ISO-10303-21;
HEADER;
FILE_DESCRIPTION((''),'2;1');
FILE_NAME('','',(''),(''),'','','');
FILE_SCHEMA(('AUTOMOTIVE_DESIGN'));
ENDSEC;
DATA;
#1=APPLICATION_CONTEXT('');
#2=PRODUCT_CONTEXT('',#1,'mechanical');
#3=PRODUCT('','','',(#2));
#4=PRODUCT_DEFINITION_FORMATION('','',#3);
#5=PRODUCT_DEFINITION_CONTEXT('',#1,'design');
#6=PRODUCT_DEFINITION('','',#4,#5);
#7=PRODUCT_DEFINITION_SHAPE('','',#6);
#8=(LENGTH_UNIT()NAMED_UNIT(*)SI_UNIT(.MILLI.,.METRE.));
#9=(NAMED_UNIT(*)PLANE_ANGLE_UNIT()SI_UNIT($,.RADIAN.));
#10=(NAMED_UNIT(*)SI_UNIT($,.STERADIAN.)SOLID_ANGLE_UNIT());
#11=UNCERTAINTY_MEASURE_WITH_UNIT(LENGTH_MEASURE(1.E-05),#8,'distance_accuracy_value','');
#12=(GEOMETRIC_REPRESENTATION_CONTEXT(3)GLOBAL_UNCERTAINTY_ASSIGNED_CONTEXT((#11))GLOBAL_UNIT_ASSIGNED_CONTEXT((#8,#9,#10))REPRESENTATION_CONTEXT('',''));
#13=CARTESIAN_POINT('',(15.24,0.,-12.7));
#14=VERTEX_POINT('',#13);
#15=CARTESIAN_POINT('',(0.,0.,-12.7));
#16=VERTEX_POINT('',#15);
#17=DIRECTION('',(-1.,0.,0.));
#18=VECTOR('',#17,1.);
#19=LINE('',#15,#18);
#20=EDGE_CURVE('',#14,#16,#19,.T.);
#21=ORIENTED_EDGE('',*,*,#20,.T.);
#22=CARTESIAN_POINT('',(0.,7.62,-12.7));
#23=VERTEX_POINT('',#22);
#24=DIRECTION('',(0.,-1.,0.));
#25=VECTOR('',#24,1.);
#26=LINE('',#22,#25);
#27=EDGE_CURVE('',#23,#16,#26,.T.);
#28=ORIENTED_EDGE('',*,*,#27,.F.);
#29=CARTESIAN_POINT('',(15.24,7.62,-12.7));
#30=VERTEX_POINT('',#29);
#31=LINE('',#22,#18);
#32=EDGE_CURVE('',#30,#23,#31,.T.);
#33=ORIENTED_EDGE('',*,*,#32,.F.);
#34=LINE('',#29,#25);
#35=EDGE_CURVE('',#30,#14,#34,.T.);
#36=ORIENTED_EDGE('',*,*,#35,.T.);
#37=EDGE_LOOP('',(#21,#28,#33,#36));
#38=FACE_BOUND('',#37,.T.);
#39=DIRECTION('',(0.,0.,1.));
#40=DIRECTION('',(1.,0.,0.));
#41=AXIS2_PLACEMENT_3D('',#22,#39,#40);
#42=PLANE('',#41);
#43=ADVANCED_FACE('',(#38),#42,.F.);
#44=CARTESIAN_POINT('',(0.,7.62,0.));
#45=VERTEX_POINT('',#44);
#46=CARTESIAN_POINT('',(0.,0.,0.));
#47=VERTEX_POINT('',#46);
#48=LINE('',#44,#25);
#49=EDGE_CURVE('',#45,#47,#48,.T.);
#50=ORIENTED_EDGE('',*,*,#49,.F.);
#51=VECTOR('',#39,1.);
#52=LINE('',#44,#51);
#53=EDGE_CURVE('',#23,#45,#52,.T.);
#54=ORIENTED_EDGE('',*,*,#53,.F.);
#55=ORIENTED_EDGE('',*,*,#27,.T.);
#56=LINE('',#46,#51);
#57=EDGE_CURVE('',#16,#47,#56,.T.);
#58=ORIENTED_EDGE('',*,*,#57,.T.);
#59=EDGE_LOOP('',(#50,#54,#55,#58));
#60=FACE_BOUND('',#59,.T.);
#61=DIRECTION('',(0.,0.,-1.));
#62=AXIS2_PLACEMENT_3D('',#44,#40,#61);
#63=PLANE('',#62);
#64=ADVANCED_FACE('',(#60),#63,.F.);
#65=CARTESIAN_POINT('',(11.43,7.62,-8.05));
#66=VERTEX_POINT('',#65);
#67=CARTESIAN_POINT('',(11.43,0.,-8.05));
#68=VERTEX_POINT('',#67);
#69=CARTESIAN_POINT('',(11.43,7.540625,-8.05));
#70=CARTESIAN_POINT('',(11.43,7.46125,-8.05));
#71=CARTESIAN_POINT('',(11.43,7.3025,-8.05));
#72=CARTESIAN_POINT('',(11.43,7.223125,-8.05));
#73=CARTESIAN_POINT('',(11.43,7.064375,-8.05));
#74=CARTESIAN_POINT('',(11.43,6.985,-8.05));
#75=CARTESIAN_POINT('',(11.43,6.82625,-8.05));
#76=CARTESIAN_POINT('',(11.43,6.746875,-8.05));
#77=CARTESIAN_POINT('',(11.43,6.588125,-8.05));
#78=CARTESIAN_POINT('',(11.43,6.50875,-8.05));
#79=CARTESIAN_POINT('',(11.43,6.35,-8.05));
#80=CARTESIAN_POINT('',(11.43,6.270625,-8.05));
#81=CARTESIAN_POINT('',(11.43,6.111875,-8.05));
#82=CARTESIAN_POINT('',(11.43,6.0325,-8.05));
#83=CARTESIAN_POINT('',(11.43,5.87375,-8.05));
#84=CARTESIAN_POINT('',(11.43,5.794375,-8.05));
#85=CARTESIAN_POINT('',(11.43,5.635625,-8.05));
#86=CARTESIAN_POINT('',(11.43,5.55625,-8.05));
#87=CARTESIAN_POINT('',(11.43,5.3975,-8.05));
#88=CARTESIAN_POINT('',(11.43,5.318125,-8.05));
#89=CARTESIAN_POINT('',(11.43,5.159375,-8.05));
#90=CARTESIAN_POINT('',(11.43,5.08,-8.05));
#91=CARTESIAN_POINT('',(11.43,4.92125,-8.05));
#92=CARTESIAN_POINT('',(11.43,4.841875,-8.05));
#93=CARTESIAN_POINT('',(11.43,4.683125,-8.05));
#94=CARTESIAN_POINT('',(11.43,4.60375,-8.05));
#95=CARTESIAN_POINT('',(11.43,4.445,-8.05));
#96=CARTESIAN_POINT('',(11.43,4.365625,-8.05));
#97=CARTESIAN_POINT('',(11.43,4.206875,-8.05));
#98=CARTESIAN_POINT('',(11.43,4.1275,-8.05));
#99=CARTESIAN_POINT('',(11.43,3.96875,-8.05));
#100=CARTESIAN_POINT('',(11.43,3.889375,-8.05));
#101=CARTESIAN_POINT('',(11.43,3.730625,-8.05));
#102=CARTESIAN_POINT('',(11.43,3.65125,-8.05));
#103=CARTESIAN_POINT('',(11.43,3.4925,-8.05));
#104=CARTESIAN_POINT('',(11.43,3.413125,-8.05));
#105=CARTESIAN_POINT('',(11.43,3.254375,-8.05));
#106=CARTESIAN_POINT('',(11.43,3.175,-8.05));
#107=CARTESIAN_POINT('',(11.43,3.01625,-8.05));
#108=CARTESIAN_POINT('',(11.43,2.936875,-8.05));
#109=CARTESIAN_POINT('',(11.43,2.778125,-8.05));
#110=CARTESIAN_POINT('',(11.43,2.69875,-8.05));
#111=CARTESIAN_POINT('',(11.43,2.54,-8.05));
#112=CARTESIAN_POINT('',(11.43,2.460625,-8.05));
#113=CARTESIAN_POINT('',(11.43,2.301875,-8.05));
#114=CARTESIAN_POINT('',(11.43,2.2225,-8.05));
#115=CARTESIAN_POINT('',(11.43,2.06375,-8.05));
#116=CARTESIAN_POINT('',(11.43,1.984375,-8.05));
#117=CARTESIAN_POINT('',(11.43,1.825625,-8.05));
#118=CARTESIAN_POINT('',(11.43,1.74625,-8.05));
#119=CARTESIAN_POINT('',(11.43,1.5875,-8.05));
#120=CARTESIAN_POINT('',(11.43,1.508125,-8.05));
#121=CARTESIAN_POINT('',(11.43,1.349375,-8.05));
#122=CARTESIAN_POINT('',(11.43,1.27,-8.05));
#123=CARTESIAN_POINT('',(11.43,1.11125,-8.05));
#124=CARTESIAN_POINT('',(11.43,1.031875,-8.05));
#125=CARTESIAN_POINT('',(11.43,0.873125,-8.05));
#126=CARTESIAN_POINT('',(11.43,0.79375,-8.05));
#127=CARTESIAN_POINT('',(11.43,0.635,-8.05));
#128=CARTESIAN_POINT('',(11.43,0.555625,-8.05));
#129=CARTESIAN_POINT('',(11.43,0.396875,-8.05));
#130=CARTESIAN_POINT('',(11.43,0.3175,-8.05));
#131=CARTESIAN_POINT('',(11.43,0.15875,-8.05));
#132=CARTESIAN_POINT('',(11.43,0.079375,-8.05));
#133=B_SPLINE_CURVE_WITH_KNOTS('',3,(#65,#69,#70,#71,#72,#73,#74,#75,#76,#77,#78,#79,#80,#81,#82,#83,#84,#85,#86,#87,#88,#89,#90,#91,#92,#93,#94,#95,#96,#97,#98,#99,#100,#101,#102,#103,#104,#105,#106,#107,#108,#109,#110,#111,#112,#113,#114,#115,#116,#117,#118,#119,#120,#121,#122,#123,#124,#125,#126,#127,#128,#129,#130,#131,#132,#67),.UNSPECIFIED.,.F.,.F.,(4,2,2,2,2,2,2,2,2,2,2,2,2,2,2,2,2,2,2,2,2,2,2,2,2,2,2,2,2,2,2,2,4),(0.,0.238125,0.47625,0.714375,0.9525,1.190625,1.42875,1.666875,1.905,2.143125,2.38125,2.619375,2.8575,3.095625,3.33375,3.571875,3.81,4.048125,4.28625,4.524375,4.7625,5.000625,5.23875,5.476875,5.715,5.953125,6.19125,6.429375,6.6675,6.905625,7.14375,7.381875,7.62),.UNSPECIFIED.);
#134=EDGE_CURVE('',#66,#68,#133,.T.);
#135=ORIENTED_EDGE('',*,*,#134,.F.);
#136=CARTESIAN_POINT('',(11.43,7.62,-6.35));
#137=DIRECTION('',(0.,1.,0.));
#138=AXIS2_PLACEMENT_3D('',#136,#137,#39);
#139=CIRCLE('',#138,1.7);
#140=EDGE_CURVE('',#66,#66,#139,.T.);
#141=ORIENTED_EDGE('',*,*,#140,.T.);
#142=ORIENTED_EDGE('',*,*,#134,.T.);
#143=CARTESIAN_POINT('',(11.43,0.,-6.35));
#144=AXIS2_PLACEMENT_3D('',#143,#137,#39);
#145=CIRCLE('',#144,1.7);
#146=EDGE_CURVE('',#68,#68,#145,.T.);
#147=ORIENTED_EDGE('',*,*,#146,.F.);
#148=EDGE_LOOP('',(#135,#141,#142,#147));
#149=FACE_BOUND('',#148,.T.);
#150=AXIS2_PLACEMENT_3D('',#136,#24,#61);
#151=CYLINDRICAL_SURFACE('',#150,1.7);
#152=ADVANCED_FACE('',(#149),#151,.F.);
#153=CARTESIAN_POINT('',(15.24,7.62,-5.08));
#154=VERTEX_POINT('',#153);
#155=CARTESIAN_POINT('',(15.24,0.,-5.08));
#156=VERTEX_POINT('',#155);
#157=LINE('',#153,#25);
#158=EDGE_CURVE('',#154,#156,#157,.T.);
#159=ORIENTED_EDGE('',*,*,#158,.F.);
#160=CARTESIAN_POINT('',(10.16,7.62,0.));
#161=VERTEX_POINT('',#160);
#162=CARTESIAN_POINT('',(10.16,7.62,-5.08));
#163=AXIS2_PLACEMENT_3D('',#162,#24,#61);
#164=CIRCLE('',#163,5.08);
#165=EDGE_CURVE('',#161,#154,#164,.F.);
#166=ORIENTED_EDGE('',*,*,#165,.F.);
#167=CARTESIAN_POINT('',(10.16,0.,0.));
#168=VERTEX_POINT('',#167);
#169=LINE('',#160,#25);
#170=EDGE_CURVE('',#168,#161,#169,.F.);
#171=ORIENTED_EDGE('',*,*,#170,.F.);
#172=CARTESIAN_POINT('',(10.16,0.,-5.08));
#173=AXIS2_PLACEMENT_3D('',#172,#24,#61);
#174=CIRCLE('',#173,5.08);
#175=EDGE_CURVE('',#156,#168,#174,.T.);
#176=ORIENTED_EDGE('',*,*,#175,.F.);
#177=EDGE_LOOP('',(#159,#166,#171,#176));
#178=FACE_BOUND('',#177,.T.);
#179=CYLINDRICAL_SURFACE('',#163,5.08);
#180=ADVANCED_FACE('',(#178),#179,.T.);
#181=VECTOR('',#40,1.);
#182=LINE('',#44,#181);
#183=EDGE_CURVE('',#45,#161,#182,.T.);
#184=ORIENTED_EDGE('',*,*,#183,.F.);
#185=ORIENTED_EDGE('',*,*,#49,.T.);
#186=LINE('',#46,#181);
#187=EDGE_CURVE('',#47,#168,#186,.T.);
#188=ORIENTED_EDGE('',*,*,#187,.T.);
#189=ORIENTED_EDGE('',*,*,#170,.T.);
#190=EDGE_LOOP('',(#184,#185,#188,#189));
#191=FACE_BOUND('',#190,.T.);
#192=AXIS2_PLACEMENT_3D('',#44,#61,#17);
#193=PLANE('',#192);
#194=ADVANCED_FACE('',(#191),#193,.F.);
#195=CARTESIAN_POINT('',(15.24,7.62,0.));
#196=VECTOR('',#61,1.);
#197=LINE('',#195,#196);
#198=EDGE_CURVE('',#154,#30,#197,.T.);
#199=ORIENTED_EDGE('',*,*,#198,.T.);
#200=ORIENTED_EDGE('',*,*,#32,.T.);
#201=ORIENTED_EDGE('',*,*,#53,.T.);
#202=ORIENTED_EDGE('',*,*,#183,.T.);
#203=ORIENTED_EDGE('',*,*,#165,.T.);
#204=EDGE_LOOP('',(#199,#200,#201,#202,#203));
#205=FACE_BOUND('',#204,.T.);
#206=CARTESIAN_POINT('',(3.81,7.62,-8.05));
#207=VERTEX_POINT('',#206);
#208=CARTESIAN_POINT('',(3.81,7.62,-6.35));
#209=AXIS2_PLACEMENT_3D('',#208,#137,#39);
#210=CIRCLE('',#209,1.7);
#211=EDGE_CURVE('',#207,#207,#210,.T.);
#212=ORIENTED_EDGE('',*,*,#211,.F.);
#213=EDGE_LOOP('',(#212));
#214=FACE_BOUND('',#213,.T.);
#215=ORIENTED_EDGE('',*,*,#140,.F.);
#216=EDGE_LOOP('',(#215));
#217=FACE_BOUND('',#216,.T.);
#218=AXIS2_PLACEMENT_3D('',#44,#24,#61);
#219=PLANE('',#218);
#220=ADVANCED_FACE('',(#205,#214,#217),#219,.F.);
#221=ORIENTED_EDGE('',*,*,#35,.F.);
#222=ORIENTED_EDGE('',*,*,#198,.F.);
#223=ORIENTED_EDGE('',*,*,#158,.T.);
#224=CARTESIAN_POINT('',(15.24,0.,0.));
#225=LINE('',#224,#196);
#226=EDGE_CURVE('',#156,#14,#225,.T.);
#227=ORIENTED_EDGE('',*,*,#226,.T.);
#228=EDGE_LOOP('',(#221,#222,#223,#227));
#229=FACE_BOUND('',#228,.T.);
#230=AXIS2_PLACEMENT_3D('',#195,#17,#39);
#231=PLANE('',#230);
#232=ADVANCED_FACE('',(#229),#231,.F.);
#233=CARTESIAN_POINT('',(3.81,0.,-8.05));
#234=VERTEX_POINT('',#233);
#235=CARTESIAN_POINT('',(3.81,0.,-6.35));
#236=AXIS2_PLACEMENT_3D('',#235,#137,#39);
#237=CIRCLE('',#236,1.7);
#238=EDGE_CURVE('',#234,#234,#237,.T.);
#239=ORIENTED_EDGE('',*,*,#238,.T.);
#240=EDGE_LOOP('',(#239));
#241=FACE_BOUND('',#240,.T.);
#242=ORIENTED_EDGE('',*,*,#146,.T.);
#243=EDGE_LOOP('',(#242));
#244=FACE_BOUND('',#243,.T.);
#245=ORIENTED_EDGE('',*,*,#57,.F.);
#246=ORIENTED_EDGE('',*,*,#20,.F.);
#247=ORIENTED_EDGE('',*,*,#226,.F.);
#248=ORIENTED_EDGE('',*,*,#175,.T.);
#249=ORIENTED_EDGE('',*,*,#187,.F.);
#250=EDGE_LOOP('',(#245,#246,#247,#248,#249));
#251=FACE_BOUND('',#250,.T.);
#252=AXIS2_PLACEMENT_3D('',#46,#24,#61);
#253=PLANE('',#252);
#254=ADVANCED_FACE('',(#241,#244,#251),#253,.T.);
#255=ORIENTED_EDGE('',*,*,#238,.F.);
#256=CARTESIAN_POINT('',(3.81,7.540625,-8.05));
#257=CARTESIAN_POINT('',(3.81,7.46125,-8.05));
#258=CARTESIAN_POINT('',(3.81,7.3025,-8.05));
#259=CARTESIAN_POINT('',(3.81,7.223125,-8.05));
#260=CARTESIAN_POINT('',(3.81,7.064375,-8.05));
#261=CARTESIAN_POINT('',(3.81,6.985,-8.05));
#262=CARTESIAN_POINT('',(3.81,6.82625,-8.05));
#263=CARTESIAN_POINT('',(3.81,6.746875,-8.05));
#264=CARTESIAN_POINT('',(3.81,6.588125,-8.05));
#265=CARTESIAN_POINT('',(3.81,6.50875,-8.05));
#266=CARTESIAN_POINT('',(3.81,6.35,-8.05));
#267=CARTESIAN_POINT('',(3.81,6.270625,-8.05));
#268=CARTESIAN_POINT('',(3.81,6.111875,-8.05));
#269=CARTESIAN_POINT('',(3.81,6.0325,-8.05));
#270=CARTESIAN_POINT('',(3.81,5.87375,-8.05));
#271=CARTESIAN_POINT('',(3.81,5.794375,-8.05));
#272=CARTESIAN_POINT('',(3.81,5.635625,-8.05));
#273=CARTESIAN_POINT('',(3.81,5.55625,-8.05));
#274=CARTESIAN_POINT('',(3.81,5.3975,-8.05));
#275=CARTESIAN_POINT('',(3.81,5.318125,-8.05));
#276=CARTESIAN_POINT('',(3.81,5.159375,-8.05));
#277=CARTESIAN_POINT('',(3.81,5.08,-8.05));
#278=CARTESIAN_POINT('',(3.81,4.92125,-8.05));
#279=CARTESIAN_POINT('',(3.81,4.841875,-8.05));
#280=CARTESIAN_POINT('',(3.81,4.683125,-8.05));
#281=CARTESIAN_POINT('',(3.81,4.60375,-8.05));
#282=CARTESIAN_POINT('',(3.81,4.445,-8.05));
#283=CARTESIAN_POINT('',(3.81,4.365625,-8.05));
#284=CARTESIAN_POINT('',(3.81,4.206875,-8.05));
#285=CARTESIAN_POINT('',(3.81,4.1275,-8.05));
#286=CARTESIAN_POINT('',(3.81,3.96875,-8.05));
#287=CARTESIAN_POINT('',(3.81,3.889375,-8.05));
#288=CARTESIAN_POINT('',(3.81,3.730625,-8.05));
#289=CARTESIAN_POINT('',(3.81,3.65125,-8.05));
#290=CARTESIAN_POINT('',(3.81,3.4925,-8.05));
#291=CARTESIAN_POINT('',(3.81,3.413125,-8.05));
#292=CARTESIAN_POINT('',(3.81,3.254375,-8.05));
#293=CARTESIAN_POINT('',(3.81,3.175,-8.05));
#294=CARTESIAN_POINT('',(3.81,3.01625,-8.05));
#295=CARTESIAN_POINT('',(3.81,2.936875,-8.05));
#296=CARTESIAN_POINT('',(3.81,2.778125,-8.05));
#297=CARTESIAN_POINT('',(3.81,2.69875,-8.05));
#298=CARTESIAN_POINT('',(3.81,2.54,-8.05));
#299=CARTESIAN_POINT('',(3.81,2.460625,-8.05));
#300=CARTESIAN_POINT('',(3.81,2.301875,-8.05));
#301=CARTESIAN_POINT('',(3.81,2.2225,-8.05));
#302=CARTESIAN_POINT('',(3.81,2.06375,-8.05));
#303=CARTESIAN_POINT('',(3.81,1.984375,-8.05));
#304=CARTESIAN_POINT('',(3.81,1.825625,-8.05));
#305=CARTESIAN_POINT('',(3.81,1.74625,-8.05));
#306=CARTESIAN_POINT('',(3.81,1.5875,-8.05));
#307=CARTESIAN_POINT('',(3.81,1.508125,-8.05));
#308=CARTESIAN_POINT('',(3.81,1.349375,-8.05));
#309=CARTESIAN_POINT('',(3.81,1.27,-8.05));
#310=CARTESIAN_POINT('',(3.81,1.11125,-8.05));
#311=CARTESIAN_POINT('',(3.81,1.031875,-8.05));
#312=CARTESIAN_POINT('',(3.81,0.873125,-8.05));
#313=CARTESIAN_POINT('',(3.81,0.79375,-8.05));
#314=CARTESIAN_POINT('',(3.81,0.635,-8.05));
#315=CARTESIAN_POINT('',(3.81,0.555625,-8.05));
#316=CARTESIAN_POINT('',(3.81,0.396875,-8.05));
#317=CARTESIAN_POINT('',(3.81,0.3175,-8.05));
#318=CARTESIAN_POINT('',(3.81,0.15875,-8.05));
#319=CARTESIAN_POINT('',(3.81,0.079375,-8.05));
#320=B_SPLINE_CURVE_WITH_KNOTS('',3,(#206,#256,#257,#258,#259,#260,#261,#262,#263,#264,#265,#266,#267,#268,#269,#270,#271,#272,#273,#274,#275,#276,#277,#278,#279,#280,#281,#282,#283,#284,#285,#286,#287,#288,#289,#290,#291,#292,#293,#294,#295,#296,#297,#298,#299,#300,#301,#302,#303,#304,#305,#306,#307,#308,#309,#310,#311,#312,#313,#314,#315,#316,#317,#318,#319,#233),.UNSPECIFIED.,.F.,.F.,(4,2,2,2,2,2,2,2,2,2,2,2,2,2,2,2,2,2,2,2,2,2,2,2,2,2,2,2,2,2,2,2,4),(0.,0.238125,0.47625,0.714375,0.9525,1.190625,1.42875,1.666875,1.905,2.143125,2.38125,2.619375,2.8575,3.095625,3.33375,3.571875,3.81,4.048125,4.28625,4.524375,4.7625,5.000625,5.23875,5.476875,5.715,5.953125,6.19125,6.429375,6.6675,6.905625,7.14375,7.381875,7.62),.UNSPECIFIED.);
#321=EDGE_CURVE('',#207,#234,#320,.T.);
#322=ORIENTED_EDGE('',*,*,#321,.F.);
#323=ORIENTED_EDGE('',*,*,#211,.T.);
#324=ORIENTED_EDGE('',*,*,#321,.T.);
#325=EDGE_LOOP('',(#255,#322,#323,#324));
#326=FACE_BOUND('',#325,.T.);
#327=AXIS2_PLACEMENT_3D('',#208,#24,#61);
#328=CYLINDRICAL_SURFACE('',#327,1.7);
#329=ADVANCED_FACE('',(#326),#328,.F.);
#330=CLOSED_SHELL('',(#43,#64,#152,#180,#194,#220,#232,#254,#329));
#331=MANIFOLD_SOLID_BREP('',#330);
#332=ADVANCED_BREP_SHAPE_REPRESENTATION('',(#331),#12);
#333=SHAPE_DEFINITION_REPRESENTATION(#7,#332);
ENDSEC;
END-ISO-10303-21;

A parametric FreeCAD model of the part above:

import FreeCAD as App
import Part
import Sketcher
Q = App.Units.Quantity


def edges_at(feature, points):
    """Names of the edges that pass closest to the given points."""
    edges = feature.Shape.Edges
    near = lambda p: min(range(len(edges)), key=lambda i: edges[i].distToShape(Part.Vertex(*p))[0])
    return sorted({f"Edge{near(p) + 1}" for p in points})


def add_polygon(sketch, points):
    """Adds a closed chain of lines whose ends are joined by coincident constraints."""
    first, n = sketch.GeometryCount, len(points)
    for a, b in zip(points, points[1:] + points[:1]):
        sketch.addGeometry(Part.LineSegment(App.Vector(*a, 0), App.Vector(*b, 0)), False)
    for i in range(n):
        sketch.addConstraint(Sketcher.Constraint("Coincident", first + i, 2, first + (i + 1) % n, 1))

doc = App.newDocument("Part")
body = doc.addObject("PartDesign::Body", "Body")

# Sketch on XZ plane
sketch1 = body.newObject("Sketcher::SketchObject", "Sketch")
sketch1.AttachmentSupport = (doc.getObject("XZ_Plane"), [""])
sketch1.MapMode = "FlatFace"
add_polygon(sketch1, [(0, -12.7), (0, 0), (15.2, 0), (15.2, -12.7)])  # lines 0-3
sketch1.addGeometry(Part.Circle(App.Vector(3.8, -6.3, 0), App.Vector(0, 0, 1), 1.7), False)  # 4
sketch1.addGeometry(Part.Circle(App.Vector(11.4, -6.3, 0), App.Vector(0, 0, 1), 1.7), False)  # 5
sketch1.addConstraint([
    Sketcher.Constraint("Vertical", 0),
    Sketcher.Constraint("Horizontal", 1),
    Sketcher.Constraint("Vertical", 2),
    Sketcher.Constraint("Horizontal", 3),
    Sketcher.Constraint("Coincident", 0, 2, -1, 1),
    Sketcher.Constraint("Equal", 4, 5),
    Sketcher.Constraint("Horizontal", 4, 3, 5, 3),
    Sketcher.Constraint("DistanceX", 1, 1, 1, 2, Q("0.6 in")),
    Sketcher.Constraint("DistanceY", 0, 1, 0, 2, Q("0.5 in")),
    Sketcher.Constraint("DistanceX", 4, 3, 5, 3, Q("0.3 in")),
    Sketcher.Constraint("Diameter", 4, Q("3.4 mm")),
    Sketcher.Constraint("DistanceX", -1, 1, 4, 3, Q("0.15 in")),
    Sketcher.Constraint("DistanceY", 4, 3, -1, 1, Q("0.25 in")),
])
pad1 = body.newObject("PartDesign::Pad", "Pad")
pad1.Profile = sketch1
pad1.Length = Q("0.3 in")
pad1.Reversed = True
doc.recompute()

fillet = body.newObject("PartDesign::Fillet", "Fillet")
fillet.Base = (pad1, edges_at(pad1, [(15.24, 3.81, 0)]))
fillet.Radius = Q("0.2 in")

doc.recompute()
